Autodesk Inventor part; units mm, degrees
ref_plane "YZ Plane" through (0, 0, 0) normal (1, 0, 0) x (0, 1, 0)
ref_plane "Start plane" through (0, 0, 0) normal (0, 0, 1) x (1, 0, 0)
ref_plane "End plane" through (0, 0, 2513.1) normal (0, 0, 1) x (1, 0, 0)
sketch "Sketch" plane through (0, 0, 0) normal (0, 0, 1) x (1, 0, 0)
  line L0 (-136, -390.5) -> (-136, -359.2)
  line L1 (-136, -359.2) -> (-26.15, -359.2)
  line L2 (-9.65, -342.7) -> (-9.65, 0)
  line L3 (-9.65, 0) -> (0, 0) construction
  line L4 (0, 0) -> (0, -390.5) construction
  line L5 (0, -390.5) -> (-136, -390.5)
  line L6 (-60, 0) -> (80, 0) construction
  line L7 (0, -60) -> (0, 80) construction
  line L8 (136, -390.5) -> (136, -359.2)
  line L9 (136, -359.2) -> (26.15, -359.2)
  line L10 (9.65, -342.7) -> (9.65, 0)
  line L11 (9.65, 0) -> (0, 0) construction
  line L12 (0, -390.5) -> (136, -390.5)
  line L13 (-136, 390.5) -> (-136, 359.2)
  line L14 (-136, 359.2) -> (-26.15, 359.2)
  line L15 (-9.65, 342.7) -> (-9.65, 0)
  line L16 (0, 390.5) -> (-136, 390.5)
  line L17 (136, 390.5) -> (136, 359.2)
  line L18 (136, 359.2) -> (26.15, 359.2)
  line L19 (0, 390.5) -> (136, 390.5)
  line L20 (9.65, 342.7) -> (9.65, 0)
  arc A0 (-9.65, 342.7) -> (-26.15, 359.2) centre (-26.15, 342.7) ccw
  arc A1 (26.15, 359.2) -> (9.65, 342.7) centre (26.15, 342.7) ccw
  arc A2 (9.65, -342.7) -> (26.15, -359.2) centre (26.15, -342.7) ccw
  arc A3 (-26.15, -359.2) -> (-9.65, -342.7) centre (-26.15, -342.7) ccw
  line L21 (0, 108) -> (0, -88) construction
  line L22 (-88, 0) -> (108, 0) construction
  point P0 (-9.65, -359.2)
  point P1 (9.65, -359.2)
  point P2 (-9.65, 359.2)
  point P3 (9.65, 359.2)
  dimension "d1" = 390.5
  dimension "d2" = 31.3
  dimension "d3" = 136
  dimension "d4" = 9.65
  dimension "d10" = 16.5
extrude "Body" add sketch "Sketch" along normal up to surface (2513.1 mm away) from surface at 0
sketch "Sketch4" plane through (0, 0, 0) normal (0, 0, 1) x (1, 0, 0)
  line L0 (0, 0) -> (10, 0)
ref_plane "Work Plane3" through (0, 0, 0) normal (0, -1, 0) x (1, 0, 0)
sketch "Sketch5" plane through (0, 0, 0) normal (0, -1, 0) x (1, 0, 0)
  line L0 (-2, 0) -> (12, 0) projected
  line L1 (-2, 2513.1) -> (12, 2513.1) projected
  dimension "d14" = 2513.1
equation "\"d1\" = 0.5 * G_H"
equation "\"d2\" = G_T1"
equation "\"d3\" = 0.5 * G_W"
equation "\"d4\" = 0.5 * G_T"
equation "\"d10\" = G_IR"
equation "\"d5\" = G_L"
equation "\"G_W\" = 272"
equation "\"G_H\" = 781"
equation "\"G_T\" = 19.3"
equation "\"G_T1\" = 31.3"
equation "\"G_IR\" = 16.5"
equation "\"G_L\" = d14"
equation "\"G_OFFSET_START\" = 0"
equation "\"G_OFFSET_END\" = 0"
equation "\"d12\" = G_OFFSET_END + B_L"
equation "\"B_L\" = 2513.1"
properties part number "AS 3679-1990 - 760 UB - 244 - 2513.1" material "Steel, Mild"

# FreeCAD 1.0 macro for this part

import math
import FreeCAD as App
import Part
import Sketcher

V = App.Vector
Q = App.Units.Quantity

doc = App.newDocument("Part")
params = doc.addObject("Spreadsheet::Sheet", "Params")
for row, (alias, value) in enumerate([
    ("sketch1_radius", "16.5 mm"),
    ("sketch1_height", "31.3 mm"),
    ("pad1_length", "2513.1 mm"),
], start=1):
    params.set(f"A{row}", alias)
    params.set(f"B{row}", "=" + value)
    params.setAlias(f"B{row}", alias)

body = doc.addObject("PartDesign::Body", "Body")

# Sketch on XY plane
sketch1 = body.newObject("Sketcher::SketchObject", "Sketch")
sketch1.AttachmentSupport = (doc.getObject("XY_Plane"), [""])
sketch1.MapMode = "FlatFace"
sketch1.addGeometry([
    Part.LineSegment(V(-136, -359, 0), V(-136, -390, 0)),  # 0
    Part.LineSegment(V(-136, -390, 0), V(136, -390, 0)),  # 1
    Part.LineSegment(V(136, -390, 0), V(136, -359, 0)),  # 2
    Part.LineSegment(V(136, -359, 0), V(26, -359, 0)),  # 3
    Part.ArcOfCircle(Part.Circle(V(26, -343, 0), V(0, 0, 1), 16), math.radians(180), math.radians(270)),  # 4
    Part.LineSegment(V(10, -343, 0), V(10, 343, 0)),  # 5
    Part.ArcOfCircle(Part.Circle(V(26, 343, 0), V(0, 0, 1), 16), math.radians(90), math.radians(180)),  # 6
    Part.LineSegment(V(26, 359, 0), V(136, 359, 0)),  # 7
    Part.LineSegment(V(136, 359, 0), V(136, 390, 0)),  # 8
    Part.LineSegment(V(136, 390, 0), V(-136, 390, 0)),  # 9
    Part.LineSegment(V(-136, 390, 0), V(-136, 359, 0)),  # 10
    Part.LineSegment(V(-136, 359, 0), V(-26, 359, 0)),  # 11
    Part.ArcOfCircle(Part.Circle(V(-26, 343, 0), V(0, 0, 1), 16), math.radians(0), math.radians(90)),  # 12
    Part.LineSegment(V(-10, 343, 0), V(-10, -343, 0)),  # 13
    Part.ArcOfCircle(Part.Circle(V(-26, -343, 0), V(0, 0, 1), 16), math.radians(-90), math.radians(0)),  # 14
    Part.LineSegment(V(-26, -359, 0), V(-136, -359, 0)),  # 15
], False)
sketch1.addConstraint([
    Sketcher.Constraint("Coincident", 0, 2, 1, 1),
    Sketcher.Constraint("Coincident", 1, 2, 2, 1),
    Sketcher.Constraint("Coincident", 2, 2, 3, 1),
    Sketcher.Constraint("Tangent", 3, 2, 4, 2),
    Sketcher.Constraint("Tangent", 4, 1, 5, 1),
    Sketcher.Constraint("Tangent", 5, 2, 6, 2),
    Sketcher.Constraint("Tangent", 6, 1, 7, 1),
    Sketcher.Constraint("Coincident", 7, 2, 8, 1),
    Sketcher.Constraint("Coincident", 8, 2, 9, 1),
    Sketcher.Constraint("Coincident", 9, 2, 10, 1),
    Sketcher.Constraint("Coincident", 10, 2, 11, 1),
    Sketcher.Constraint("Tangent", 11, 2, 12, 2),
    Sketcher.Constraint("Tangent", 12, 1, 13, 1),
    Sketcher.Constraint("Tangent", 13, 2, 14, 2),
    Sketcher.Constraint("Tangent", 14, 1, 15, 1),
    Sketcher.Constraint("Coincident", 15, 2, 0, 1),
    Sketcher.Constraint("Vertical", 0),
    Sketcher.Constraint("Horizontal", 1),
    Sketcher.Constraint("Vertical", 2),
    Sketcher.Constraint("Horizontal", 3),
    Sketcher.Constraint("Vertical", 5),
    Sketcher.Constraint("Horizontal", 7),
    Sketcher.Constraint("Vertical", 8),
    Sketcher.Constraint("Horizontal", 9),
    Sketcher.Constraint("Vertical", 10),
    Sketcher.Constraint("Horizontal", 11),
    Sketcher.Constraint("Vertical", 13),
    Sketcher.Constraint("Horizontal", 15),
    Sketcher.Constraint("Equal", 4, 6),
    Sketcher.Constraint("Equal", 6, 12),
    Sketcher.Constraint("Equal", 12, 14),
    Sketcher.Constraint("Symmetric", 4, 3, 12, 3, -1, 1),
    Sketcher.Constraint("Symmetric", 0, 2, 8, 2, -1, 1),
    Sketcher.Constraint("Symmetric", 7, 2, 10, 2, -2),
    Sketcher.Constraint("Symmetric", 2, 2, 15, 2, -2),
    Sketcher.Constraint("Radius", 4, Q("16.5 mm")),
    Sketcher.Constraint("DistanceY", 0, 2, 0, 1, Q("31.3 mm")),
    Sketcher.Constraint("DistanceX", 0, 2, -1, 1, Q("136 mm")),
    Sketcher.Constraint("DistanceY", 0, 2, -1, 1, Q("390.5 mm")),
    Sketcher.Constraint("DistanceX", -1, 1, 4, 1, Q("9.65 mm")),
])
sketch1.setExpression("Constraints[35]", "Params.sketch1_radius")
sketch1.setExpression("Constraints[36]", "Params.sketch1_height")
pad1 = body.newObject("PartDesign::Pad", "Pad")
pad1.Profile = sketch1
pad1.setExpression("Length", "Params.pad1_length")

doc.recompute()
